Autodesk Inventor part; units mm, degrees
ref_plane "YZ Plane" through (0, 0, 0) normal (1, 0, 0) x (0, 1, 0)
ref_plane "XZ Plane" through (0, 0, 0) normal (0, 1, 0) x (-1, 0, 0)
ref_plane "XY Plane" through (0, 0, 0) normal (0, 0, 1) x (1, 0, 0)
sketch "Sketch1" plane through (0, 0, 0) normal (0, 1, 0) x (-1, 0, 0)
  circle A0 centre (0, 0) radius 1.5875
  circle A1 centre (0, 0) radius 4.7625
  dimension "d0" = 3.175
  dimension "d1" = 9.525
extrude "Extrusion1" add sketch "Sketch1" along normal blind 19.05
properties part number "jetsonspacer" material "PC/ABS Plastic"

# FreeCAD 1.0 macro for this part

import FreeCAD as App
import Part
import Sketcher
Q = App.Units.Quantity

doc = App.newDocument("Part")
params = doc.addObject("Spreadsheet::Sheet", "Params")
for row, (alias, value) in enumerate([
    ("sketch1_diameter", "0.375 in"),
    ("sketch1_diameter2", "0.125 in"),
    ("pad1_length", "0.75 in"),
], start=1):
    params.set(f"A{row}", alias)
    params.set(f"B{row}", "=" + value)
    params.setAlias(f"B{row}", alias)

body = doc.addObject("PartDesign::Body", "Body")

sketch1 = body.newObject("Sketcher::SketchObject", "Sketch")
sketch1.AttachmentSupport = (doc.getObject("XZ_Plane"), [""])
sketch1.MapMode = "FlatFace"
sketch1.addGeometry(Part.Circle(App.Vector(0, 0, 0), App.Vector(0, 0, 1), 4.8), False)
sketch1.addGeometry(Part.Circle(App.Vector(0, 0, 0), App.Vector(0, 0, 1), 1.6), False)
sketch1.addConstraint(Sketcher.Constraint("Coincident", 0, 3, -1, 1))
sketch1.addConstraint(Sketcher.Constraint("Coincident", 1, 3, -1, 1))
sketch1.addConstraint(Sketcher.Constraint("Diameter", 0, Q("0.375 in")))
sketch1.addConstraint(Sketcher.Constraint("Diameter", 1, Q("0.125 in")))
sketch1.setExpression("Constraints[2]", "Params.sketch1_diameter")
sketch1.setExpression("Constraints[3]", "Params.sketch1_diameter2")
pad1 = body.newObject("PartDesign::Pad", "Pad")
pad1.Profile = sketch1
pad1.setExpression("Length", "Params.pad1_length")
pad1.Reversed = True

doc.recompute()
